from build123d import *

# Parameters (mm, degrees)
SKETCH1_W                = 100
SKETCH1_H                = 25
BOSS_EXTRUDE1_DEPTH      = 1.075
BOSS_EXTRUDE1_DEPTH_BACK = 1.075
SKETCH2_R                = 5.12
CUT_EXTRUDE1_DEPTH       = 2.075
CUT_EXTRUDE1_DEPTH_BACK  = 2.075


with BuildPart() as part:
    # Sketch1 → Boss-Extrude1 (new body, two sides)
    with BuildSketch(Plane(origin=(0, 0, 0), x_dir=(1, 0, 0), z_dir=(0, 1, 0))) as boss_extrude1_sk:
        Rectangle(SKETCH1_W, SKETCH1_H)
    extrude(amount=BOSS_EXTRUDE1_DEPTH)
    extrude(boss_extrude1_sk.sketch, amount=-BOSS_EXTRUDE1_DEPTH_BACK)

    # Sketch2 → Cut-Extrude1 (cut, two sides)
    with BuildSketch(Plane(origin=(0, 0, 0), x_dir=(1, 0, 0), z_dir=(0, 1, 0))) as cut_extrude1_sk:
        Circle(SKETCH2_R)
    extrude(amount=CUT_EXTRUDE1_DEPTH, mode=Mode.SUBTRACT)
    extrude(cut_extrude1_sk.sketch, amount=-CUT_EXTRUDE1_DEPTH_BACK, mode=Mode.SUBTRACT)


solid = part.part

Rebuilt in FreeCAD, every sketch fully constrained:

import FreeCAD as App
import Part
import Sketcher

doc = App.newDocument("Part")
body = doc.addObject("PartDesign::Body", "Body")

sketch1 = body.newObject("Sketcher::SketchObject", "Sketch")
sketch1.AttachmentSupport = (doc.getObject("XZ_Plane"), [""])
sketch1.MapMode = "FlatFace"
sketch1.addGeometry([
    Part.LineSegment(App.Vector(-50, -12, 0), App.Vector(-50, 12, 0)),
    Part.LineSegment(App.Vector(-50, 12, 0), App.Vector(50, 12, 0)),
    Part.LineSegment(App.Vector(50, 12, 0), App.Vector(50, -12, 0)),
    Part.LineSegment(App.Vector(50, -12, 0), App.Vector(-50, -12, 0)),
], False)
sketch1.addConstraint([
    Sketcher.Constraint("Coincident", 0, 2, 1, 1),
    Sketcher.Constraint("Coincident", 1, 2, 2, 1),
    Sketcher.Constraint("Coincident", 2, 2, 3, 1),
    Sketcher.Constraint("Coincident", 3, 2, 0, 1),
    Sketcher.Constraint("Vertical", 0),
    Sketcher.Constraint("Horizontal", 1),
    Sketcher.Constraint("Vertical", 2),
    Sketcher.Constraint("Horizontal", 3),
    Sketcher.Constraint("Symmetric", 0, 2, 2, 2, -1, 1),
    Sketcher.Constraint("DistanceX", 1, 1, 1, 2, 100.0),
    Sketcher.Constraint("DistanceY", 0, 1, 0, 2, 25.0),
])
pad1 = body.newObject("PartDesign::Pad", "Pad")
pad1.Profile = sketch1
pad1.Type = "TwoLengths"
pad1.Length = 1.075
pad1.Length2 = 1.075
pad1.Reversed = True

sketch2 = body.newObject("Sketcher::SketchObject", "Sketch001")
sketch2.AttachmentSupport = (doc.getObject("XZ_Plane"), [""])
sketch2.MapMode = "FlatFace"
sketch2.addGeometry(Part.Circle(App.Vector(0, 0, 0), App.Vector(0, 0, 1), 5), False)
sketch2.addConstraint([
    Sketcher.Constraint("Coincident", 0, 3, -1, 1),
    Sketcher.Constraint("Diameter", 0, 10.24),
])
pocket1 = body.newObject("PartDesign::Pocket", "Pocket")
pocket1.Profile = sketch2
pocket1.Type = "ThroughAll"
pocket1.Midplane = True

doc.recompute()
